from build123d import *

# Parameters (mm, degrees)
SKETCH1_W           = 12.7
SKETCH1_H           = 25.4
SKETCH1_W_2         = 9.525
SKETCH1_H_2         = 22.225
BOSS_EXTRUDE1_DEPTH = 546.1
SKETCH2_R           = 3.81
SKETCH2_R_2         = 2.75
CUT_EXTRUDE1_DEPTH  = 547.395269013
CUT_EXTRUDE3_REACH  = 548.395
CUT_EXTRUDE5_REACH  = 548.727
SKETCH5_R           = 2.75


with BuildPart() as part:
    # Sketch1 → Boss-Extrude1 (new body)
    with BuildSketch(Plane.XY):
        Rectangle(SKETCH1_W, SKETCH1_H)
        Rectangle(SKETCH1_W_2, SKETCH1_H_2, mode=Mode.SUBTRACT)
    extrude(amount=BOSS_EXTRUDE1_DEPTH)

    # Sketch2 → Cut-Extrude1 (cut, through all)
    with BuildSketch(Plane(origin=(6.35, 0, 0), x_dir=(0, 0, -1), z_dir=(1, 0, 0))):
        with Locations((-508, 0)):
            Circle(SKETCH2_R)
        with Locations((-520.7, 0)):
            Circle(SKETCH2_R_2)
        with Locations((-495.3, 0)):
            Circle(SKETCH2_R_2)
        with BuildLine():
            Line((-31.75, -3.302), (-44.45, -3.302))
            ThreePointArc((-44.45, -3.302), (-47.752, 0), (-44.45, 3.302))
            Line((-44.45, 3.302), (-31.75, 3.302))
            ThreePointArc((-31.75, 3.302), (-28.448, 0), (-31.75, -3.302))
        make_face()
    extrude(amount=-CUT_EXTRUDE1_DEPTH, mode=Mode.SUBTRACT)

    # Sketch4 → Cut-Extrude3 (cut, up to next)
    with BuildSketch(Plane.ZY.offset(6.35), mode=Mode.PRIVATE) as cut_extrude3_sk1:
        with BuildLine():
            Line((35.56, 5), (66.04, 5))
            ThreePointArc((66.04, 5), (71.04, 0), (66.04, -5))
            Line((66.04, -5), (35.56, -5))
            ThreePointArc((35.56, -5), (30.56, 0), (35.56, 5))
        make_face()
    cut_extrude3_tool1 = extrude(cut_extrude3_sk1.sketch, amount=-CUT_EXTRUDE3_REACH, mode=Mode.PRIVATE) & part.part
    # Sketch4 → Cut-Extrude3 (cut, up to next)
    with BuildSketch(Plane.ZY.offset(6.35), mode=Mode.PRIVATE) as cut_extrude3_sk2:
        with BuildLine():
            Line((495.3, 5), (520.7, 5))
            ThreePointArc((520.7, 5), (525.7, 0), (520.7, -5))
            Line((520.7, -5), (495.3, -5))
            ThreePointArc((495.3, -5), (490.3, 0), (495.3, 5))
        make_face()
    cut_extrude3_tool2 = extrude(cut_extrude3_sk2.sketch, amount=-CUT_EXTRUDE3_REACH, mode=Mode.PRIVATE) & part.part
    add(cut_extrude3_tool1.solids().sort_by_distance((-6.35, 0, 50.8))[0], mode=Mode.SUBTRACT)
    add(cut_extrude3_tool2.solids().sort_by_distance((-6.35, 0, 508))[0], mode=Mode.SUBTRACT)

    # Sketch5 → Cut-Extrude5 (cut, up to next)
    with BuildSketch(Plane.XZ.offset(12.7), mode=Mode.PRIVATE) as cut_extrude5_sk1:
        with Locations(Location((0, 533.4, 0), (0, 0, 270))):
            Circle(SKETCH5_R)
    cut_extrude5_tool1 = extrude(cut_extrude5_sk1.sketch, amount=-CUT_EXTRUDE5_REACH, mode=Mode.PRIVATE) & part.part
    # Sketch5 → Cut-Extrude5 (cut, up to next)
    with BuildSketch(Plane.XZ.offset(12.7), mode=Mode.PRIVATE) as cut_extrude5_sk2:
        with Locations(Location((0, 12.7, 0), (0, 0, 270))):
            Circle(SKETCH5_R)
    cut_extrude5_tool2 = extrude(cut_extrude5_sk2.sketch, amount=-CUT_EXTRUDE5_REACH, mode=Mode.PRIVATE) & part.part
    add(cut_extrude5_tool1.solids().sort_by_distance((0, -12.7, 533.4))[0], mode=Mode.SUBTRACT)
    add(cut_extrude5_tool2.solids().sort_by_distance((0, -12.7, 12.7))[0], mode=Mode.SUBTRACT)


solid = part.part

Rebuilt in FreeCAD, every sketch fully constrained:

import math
import FreeCAD as App
import Part
import Sketcher

V = App.Vector
Q = App.Units.Quantity

doc = App.newDocument("Part")
body = doc.addObject("PartDesign::Body", "Body")

sketch1 = body.newObject("Sketcher::SketchObject", "Sketch")
sketch1.AttachmentSupport = (doc.getObject("XY_Plane"), [""])
sketch1.MapMode = "FlatFace"
sketch1.addGeometry([
    Part.LineSegment(V(-6, 13, 0), V(-6, -13, 0)),
    Part.LineSegment(V(-6, -13, 0), V(6, -13, 0)),
    Part.LineSegment(V(6, -13, 0), V(6, 13, 0)),
    Part.LineSegment(V(6, 13, 0), V(-6, 13, 0)),
    Part.LineSegment(V(5, -11, 0), V(-5, -11, 0)),
    Part.LineSegment(V(-5, -11, 0), V(-5, 11, 0)),
    Part.LineSegment(V(-5, 11, 0), V(5, 11, 0)),
    Part.LineSegment(V(5, 11, 0), V(5, -11, 0)),
], False)
sketch1.addConstraint([
    Sketcher.Constraint("Coincident", 0, 2, 1, 1),
    Sketcher.Constraint("Coincident", 1, 2, 2, 1),
    Sketcher.Constraint("Coincident", 2, 2, 3, 1),
    Sketcher.Constraint("Coincident", 3, 2, 0, 1),
    Sketcher.Constraint("Coincident", 4, 2, 5, 1),
    Sketcher.Constraint("Coincident", 5, 2, 6, 1),
    Sketcher.Constraint("Coincident", 6, 2, 7, 1),
    Sketcher.Constraint("Coincident", 7, 2, 4, 1),
    Sketcher.Constraint("Vertical", 0),
    Sketcher.Constraint("Horizontal", 1),
    Sketcher.Constraint("Vertical", 2),
    Sketcher.Constraint("Horizontal", 3),
    Sketcher.Constraint("Horizontal", 4),
    Sketcher.Constraint("Vertical", 5),
    Sketcher.Constraint("Horizontal", 6),
    Sketcher.Constraint("Vertical", 7),
    Sketcher.Constraint("Symmetric", 0, 2, 2, 2, -1, 1),
    Sketcher.Constraint("Symmetric", 4, 2, 6, 2, -1, 1),
    Sketcher.Constraint("DistanceY", 0, 2, 0, 1, Q("1 in")),
    Sketcher.Constraint("DistanceX", 1, 1, 1, 2, Q("0.5 in")),
    Sketcher.Constraint("DistanceX", 4, 2, 4, 1, Q("0.375 in")),
    Sketcher.Constraint("DistanceY", 5, 1, 5, 2, Q("0.875 in")),
])
pad1 = body.newObject("PartDesign::Pad", "Pad")
pad1.Profile = sketch1
pad1.Length = Q("21.5 in")

sketch2 = body.newObject("Sketcher::SketchObject", "Sketch001")
sketch2.AttachmentSupport = (doc.getObject("YZ_Plane"), [""])
sketch2.MapMode = "FlatFace"
sketch2.AttachmentOffset = App.Placement(V(0, 0, 0.25 * 25.4), App.Rotation())
sketch2.addGeometry([
    Part.Circle(V(0, 508, 0), V(0, 0, 1), 3.8),
    Part.Circle(V(0, 520.7, 0), V(0, 0, 1), 2.8),
    Part.Circle(V(0, 495.3, 0), V(0, 0, 1), 2.8),
    Part.LineSegment(V(-3.3, 44.5, 0), V(-3.3, 31.8, 0)),
    Part.ArcOfCircle(Part.Circle(V(0, 31.8, 0), V(0, 0, 1), 3.3), math.radians(180), math.radians(360)),
    Part.LineSegment(V(3.3, 31.8, 0), V(3.3, 44.5, 0)),
    Part.ArcOfCircle(Part.Circle(V(0, 44.5, 0), V(0, 0, 1), 3.3), math.radians(0), math.radians(180)),
], False)
sketch2.addConstraint([
    Sketcher.Constraint("Tangent", 3, 2, 4, 1),
    Sketcher.Constraint("Tangent", 4, 2, 5, 1),
    Sketcher.Constraint("Tangent", 5, 2, 6, 1),
    Sketcher.Constraint("Tangent", 6, 2, 3, 1),
    Sketcher.Constraint("Vertical", 3),
    Sketcher.Constraint("Vertical", 5),
    Sketcher.Constraint("Equal", 1, 2),
    Sketcher.Constraint("PointOnObject", 0, 3, -2),
    Sketcher.Constraint("PointOnObject", 1, 3, -2),
    Sketcher.Constraint("PointOnObject", 2, 3, -2),
    Sketcher.Constraint("PointOnObject", 4, 3, -2),
    Sketcher.Constraint("Diameter", 0, Q("0.3 in")),
    Sketcher.Constraint("Radius", 4, Q("0.13 in")),
    Sketcher.Constraint("DistanceY", 3, 2, 3, 1, Q("0.5 in")),
    Sketcher.Constraint("DistanceY", -1, 1, 0, 3, Q("20 in")),
    Sketcher.Constraint("DistanceY", 2, 3, 1, 3, Q("1 in")),
    Sketcher.Constraint("DistanceY", -1, 1, 1, 3, Q("20.5 in")),
    Sketcher.Constraint("Diameter", 1, Q("5.5 mm")),
    Sketcher.Constraint("DistanceY", -1, 1, 4, 3, Q("1.25 in")),
])
pocket1 = body.newObject("PartDesign::Pocket", "Pocket")
pocket1.Profile = sketch2
pocket1.Type = "ThroughAll"

sketch3 = body.newObject("Sketcher::SketchObject", "Sketch002")
sketch3.AttachmentSupport = (doc.getObject("YZ_Plane"), [""])
sketch3.MapMode = "FlatFace"
sketch3.AttachmentOffset = App.Placement(V(0, 0, -0.25 * 25.4), App.Rotation())
sketch3.addGeometry([
    Part.LineSegment(V(5, 66, 0), V(5, 36, 0)),
    Part.ArcOfCircle(Part.Circle(V(0, 36, 0), V(0, 0, 1), 5), math.radians(180), math.radians(360)),
    Part.LineSegment(V(-5, 36, 0), V(-5, 66, 0)),
    Part.ArcOfCircle(Part.Circle(V(0, 66, 0), V(0, 0, 1), 5), math.radians(0), math.radians(180)),
], False)
sketch3.addConstraint([
    Sketcher.Constraint("Tangent", 0, 2, 1, 2),
    Sketcher.Constraint("Tangent", 1, 1, 2, 1),
    Sketcher.Constraint("Tangent", 2, 2, 3, 2),
    Sketcher.Constraint("Tangent", 3, 1, 0, 1),
    Sketcher.Constraint("Vertical", 0),
    Sketcher.Constraint("Vertical", 2),
    Sketcher.Constraint("PointOnObject", 1, 3, -2),
    Sketcher.Constraint("DistanceY", 0, 2, 0, 1, Q("1.2 in")),
    Sketcher.Constraint("DistanceY", -1, 1, 1, 3, Q("1.4 in")),
    Sketcher.Constraint("Radius", 1, Q("5 mm")),
])
pocket2 = body.newObject("PartDesign::Pocket", "Pocket001")
pocket2.Profile = sketch3
pocket2.Type = "UpToFirst"
pocket2.Reversed = True

sketch4 = body.newObject("Sketcher::SketchObject", "Sketch003")
sketch4.AttachmentSupport = (doc.getObject("YZ_Plane"), [""])
sketch4.MapMode = "FlatFace"
sketch4.AttachmentOffset = App.Placement(V(0, 0, -0.25 * 25.4), App.Rotation())
sketch4.addGeometry([
    Part.LineSegment(V(5, 521, 0), V(5, 495, 0)),
    Part.ArcOfCircle(Part.Circle(V(0, 495, 0), V(0, 0, 1), 5), math.radians(180), math.radians(360)),
    Part.LineSegment(V(-5, 495, 0), V(-5, 521, 0)),
    Part.ArcOfCircle(Part.Circle(V(0, 521, 0), V(0, 0, 1), 5), math.radians(0), math.radians(180)),
], False)
sketch4.addConstraint([
    Sketcher.Constraint("Tangent", 0, 2, 1, 2),
    Sketcher.Constraint("Tangent", 1, 1, 2, 1),
    Sketcher.Constraint("Tangent", 2, 2, 3, 2),
    Sketcher.Constraint("Tangent", 3, 1, 0, 1),
    Sketcher.Constraint("Vertical", 0),
    Sketcher.Constraint("Vertical", 2),
    Sketcher.Constraint("PointOnObject", 1, 3, -2),
    Sketcher.Constraint("DistanceY", 0, 2, 0, 1, Q("1 in")),
    Sketcher.Constraint("DistanceY", -1, 1, 1, 3, Q("19.5 in")),
    Sketcher.Constraint("Radius", 1, Q("5 mm")),
])
pocket3 = body.newObject("PartDesign::Pocket", "Pocket002")
pocket3.Profile = sketch4
pocket3.Length = Q("0.0625 in")
pocket3.Reversed = True

sketch5 = body.newObject("Sketcher::SketchObject", "Sketch004")
sketch5.AttachmentSupport = (doc.getObject("XZ_Plane"), [""])
sketch5.MapMode = "FlatFace"
sketch5.AttachmentOffset = App.Placement(V(0, 0, 0.5 * 25.4), App.Rotation())
sketch5.addGeometry(Part.Circle(V(0, 533.4, 0), V(0, 0, 1), 2.8), False)
sketch5.addConstraint([
    Sketcher.Constraint("PointOnObject", 0, 3, -2),
    Sketcher.Constraint("DistanceY", -1, 1, 0, 3, Q("21 in")),
    Sketcher.Constraint("Diameter", 0, Q("5.5 mm")),
])
pocket4 = body.newObject("PartDesign::Pocket", "Pocket003")
pocket4.Profile = sketch5
pocket4.Type = "UpToFirst"

sketch6 = body.newObject("Sketcher::SketchObject", "Sketch005")
sketch6.AttachmentSupport = (doc.getObject("XZ_Plane"), [""])
sketch6.MapMode = "FlatFace"
sketch6.AttachmentOffset = App.Placement(V(0, 0, 0.5 * 25.4), App.Rotation())
sketch6.addGeometry(Part.Circle(V(0, 12.7, 0), V(0, 0, 1), 2.8), False)
sketch6.addConstraint([
    Sketcher.Constraint("PointOnObject", 0, 3, -2),
    Sketcher.Constraint("DistanceY", -1, 1, 0, 3, Q("0.5 in")),
    Sketcher.Constraint("Diameter", 0, Q("5.5 mm")),
])
pocket5 = body.newObject("PartDesign::Pocket", "Pocket004")
pocket5.Profile = sketch6
pocket5.Type = "UpToFirst"

doc.recompute()
